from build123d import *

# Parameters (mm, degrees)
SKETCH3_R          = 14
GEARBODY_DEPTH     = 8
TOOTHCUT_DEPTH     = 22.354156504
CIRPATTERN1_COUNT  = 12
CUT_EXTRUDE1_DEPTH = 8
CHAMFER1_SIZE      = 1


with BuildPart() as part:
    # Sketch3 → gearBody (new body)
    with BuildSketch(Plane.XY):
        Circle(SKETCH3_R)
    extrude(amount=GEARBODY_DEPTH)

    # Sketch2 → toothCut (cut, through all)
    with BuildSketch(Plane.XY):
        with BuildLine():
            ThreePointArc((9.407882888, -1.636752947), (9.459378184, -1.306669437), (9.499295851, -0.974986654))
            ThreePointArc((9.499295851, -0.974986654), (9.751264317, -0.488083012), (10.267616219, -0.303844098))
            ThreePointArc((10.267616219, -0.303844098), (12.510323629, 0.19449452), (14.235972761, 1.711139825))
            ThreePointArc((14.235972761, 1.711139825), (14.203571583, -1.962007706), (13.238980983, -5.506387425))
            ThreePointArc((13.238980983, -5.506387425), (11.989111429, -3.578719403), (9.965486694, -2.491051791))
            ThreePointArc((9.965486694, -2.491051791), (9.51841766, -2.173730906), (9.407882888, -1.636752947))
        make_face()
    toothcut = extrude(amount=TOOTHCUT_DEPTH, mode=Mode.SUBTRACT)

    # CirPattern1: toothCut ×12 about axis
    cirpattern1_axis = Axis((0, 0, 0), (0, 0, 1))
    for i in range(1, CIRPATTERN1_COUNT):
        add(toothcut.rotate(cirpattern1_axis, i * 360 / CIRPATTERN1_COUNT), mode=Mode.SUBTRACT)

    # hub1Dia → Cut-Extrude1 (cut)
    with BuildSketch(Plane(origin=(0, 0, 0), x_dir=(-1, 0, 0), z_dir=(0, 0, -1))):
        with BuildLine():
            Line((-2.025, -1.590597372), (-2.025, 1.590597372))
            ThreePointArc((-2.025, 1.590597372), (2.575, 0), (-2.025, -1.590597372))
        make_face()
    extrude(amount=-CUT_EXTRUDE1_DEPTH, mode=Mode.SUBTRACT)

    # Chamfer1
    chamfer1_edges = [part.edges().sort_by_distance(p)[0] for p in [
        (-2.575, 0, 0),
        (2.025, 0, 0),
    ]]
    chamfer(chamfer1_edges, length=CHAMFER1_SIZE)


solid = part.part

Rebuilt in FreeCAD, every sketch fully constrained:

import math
import FreeCAD as App
import Part
import Sketcher
Q = App.Units.Quantity


def edges_at(feature, points):
    """Names of the edges that pass closest to the given points."""
    edges = feature.Shape.Edges
    near = lambda p: min(range(len(edges)), key=lambda i: edges[i].distToShape(Part.Vertex(*p))[0])
    return sorted({f"Edge{near(p) + 1}" for p in points})

doc = App.newDocument("Part")
body = doc.addObject("PartDesign::Body", "Body")

# Sketch on XY plane
sketch1 = doc.addObject("Sketcher::SketchObject", "Sketch")
body.addObject(sketch1)
sketch1.AttachmentSupport = (doc.XY_Plane, [""])
sketch1.MapMode = "FlatFace"
sketch1.addGeometry(Part.Circle(App.Vector(0, 0, 0), App.Vector(0, 0, 1), 14), False)
sketch1.addConstraint([
    Sketcher.Constraint("Coincident", 0, 3, -1, 1),
    Sketcher.Constraint("Diameter", 0, Q("28 mm")),
])
pad1 = doc.addObject("PartDesign::Pad", "Pad")
body.addObject(pad1)
pad1.Profile = sketch1
pad1.Length = 8

# Sketch on XY plane
sketch2 = doc.addObject("Sketcher::SketchObject", "Sketch001")
body.addObject(sketch2)
sketch2.AttachmentSupport = (doc.XY_Plane, [""])
sketch2.MapMode = "FlatFace"
sketch2.addGeometry([
    Part.ArcOfCircle(Part.Circle(App.Vector(0, 0, 0), App.Vector(0, 0, 1), 9.5492), math.radians(-9.86935), math.radians(-5.860191)),  # 0
    Part.ArcOfCircle(Part.Circle(App.Vector(10.144715, -1.764945, 0), App.Vector(0, 0, 1), 0.7479), math.radians(170.13065), math.radians(256.134597)),  # 1
    Part.ArcOfCircle(Part.Circle(App.Vector(8.857971, -6.977934, 0), App.Vector(0, 0, 1), 4.621547), math.radians(18.566787), math.radians(76.134597)),  # 2
    Part.ArcOfCircle(Part.Circle(App.Vector(0, 0, 0), App.Vector(0, 0, 1), 14.338442), math.radians(-22.583515), math.radians(6.853974)),  # 3
    Part.ArcOfCircle(Part.Circle(App.Vector(10.417953, 4.315258, 0), App.Vector(0, 0, 1), 4.621547), math.radians(-91.864138), math.radians(-34.296328)),  # 4
    Part.ArcOfCircle(Part.Circle(App.Vector(10.243287, -1.051348, 0), App.Vector(0, 0, 1), 0.7479), math.radians(88.135862), math.radians(174.139809)),  # 5
], False)
sketch2.addConstraint([
    Sketcher.Constraint("Tangent", 0, 1, 1, 1),
    Sketcher.Constraint("Tangent", 1, 2, 2, 2),
    Sketcher.Constraint("Coincident", 2, 1, 3, 1),
    Sketcher.Constraint("Coincident", 3, 2, 4, 2),
    Sketcher.Constraint("Tangent", 4, 1, 5, 1),
    Sketcher.Constraint("Tangent", 5, 2, 0, 2),
    Sketcher.Constraint("Coincident", 0, 3, -1, 1),
    Sketcher.Constraint("Coincident", 3, 3, -1, 1),
    Sketcher.Constraint("Equal", 2, 4),
    Sketcher.Constraint("Equal", 1, 5),
    Sketcher.Constraint("Radius", 0, Q("9.5492 mm")),
    Sketcher.Constraint("Radius", 1, Q("0.7479 mm")),
    Sketcher.Constraint("Radius", 2, Q("4.621547 mm")),
    Sketcher.Constraint("Radius", 3, Q("14.338442 mm")),
    Sketcher.Constraint("DistanceY", 1, 2, 0, 1, Q("0.854299 mm")),
    Sketcher.Constraint("DistanceX", 1, 2, 5, 3, Q("0.277801 mm")),
    Sketcher.Constraint("DistanceX", 0, 1, 2, 1, Q("3.831098 mm")),
    Sketcher.Constraint("DistanceX", 1, 3, 4, 1, Q("0.122901 mm")),
])
pocket1 = doc.addObject("PartDesign::Pocket", "Pocket")
body.addObject(pocket1)
pocket1.Profile = sketch2
pocket1.Type = "ThroughAll"
pocket1.Reversed = True
doc.recompute()

polarpattern = doc.addObject("PartDesign::PolarPattern", "PolarPattern")
body.addObject(polarpattern)
polarpattern.Originals = [pocket1]
polarpattern.Axis = (doc.Z_Axis, [""])
polarpattern.Angle = 360
polarpattern.Occurrences = 12
body.Tip = polarpattern

# Sketch on XY plane
sketch3 = doc.addObject("Sketcher::SketchObject", "Sketch002")
body.addObject(sketch3)
sketch3.AttachmentSupport = (doc.XY_Plane, [""])
sketch3.MapMode = "FlatFace"
sketch3.addGeometry([
    Part.LineSegment(App.Vector(2.025, 1.590597, 0), App.Vector(2.025, -1.590597, 0)),
    Part.ArcOfCircle(Part.Circle(App.Vector(0, 0, 0), App.Vector(0, 0, 1), 2.575), math.radians(38.148932), math.radians(321.851068)),
], False)
sketch3.addConstraint([
    Sketcher.Constraint("Coincident", 0, 1, 1, 1),
    Sketcher.Constraint("Coincident", 1, 2, 0, 2),
    Sketcher.Constraint("Vertical", 0),
    Sketcher.Constraint("Coincident", 1, 3, -1, 1),
    Sketcher.Constraint("Radius", 1, Q("2.575 mm")),
    Sketcher.Constraint("DistanceX", -1, 1, 0, 1, Q("2.025 mm")),
])
pocket2 = doc.addObject("PartDesign::Pocket", "Pocket001")
body.addObject(pocket2)
pocket2.Profile = sketch3
pocket2.Length = 8
pocket2.Reversed = True
doc.recompute()

chamfer = doc.addObject("PartDesign::Chamfer", "Chamfer")
body.addObject(chamfer)
chamfer.Base = (pocket2, edges_at(pocket2, [(-2.575, 0, 0), (2.025, 0, 0)]))
chamfer.Size = 1

doc.recompute()
